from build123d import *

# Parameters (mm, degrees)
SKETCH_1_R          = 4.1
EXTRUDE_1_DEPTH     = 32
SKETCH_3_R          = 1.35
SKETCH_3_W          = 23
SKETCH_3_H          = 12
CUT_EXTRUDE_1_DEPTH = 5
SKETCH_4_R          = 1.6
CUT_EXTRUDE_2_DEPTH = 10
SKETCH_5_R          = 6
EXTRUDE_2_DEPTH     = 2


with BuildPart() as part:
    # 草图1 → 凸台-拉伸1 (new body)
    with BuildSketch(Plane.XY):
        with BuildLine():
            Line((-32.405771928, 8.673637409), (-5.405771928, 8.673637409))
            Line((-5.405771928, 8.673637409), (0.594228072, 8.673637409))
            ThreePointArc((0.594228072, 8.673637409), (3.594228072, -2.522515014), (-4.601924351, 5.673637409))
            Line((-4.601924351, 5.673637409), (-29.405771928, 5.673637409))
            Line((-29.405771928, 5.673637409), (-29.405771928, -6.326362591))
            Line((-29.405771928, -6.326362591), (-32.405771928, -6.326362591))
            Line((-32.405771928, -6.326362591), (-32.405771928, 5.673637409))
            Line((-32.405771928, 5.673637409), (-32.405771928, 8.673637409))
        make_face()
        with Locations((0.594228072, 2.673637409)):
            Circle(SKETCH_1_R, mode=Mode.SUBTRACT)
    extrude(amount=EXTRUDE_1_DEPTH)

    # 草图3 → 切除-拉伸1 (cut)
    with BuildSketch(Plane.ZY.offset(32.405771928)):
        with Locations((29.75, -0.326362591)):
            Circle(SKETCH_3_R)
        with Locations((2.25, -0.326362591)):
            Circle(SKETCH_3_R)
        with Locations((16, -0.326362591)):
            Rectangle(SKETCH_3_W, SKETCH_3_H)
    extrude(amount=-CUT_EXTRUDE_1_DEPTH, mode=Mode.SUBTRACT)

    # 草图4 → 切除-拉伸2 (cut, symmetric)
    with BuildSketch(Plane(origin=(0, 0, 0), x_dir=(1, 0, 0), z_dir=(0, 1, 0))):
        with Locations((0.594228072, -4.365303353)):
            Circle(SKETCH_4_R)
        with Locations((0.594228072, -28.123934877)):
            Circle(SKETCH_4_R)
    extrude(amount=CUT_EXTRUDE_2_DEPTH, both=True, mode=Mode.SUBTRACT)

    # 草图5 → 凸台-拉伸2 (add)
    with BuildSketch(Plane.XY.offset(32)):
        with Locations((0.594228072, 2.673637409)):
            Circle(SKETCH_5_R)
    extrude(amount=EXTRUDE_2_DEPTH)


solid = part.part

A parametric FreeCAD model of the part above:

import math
import FreeCAD as App
import Part
import Sketcher
from FreeCAD import Vector
Q = App.Units.Quantity


def add_polygon(sketch, points):
    """Adds a closed chain of lines whose ends are joined by coincident constraints."""
    first, n = sketch.GeometryCount, len(points)
    for a, b in zip(points, points[1:] + points[:1]):
        sketch.addGeometry(Part.LineSegment(App.Vector(*a, 0), App.Vector(*b, 0)), False)
    for i in range(n):
        sketch.addConstraint(Sketcher.Constraint("Coincident", first + i, 2, first + (i + 1) % n, 1))

doc = App.newDocument("Part")
body = doc.addObject("PartDesign::Body", "Body")

# Sketch on XY plane
sketch1 = body.newObject("Sketcher::SketchObject", "Sketch")
sketch1.AttachmentSupport = (doc.getObject("XY_Plane"), [""])
sketch1.MapMode = "FlatFace"
sketch1.addGeometry([
    Part.LineSegment(Vector(0.6, 8.7, 0), Vector(-32.4, 8.7, 0)),  # 0
    Part.LineSegment(Vector(-32.4, 8.7, 0), Vector(-32.4, -6.3, 0)),  # 1
    Part.LineSegment(Vector(-32.4, -6.3, 0), Vector(-29.4, -6.3, 0)),  # 2
    Part.LineSegment(Vector(-29.4, -6.3, 0), Vector(-29.4, 5.7, 0)),  # 3
    Part.LineSegment(Vector(-29.4, 5.7, 0), Vector(-4.6, 5.7, 0)),  # 4
    Part.ArcOfCircle(Part.Circle(Vector(0.6, 2.7, 0), Vector(0, 0, 1), 6), math.radians(150), math.radians(450)),  # 5
    Part.Circle(Vector(0.6, 2.7, 0), Vector(0, 0, 1), 4.1),  # 6
], False)
sketch1.addConstraint([
    Sketcher.Constraint("Coincident", 0, 2, 1, 1),
    Sketcher.Constraint("Coincident", 1, 2, 2, 1),
    Sketcher.Constraint("Coincident", 2, 2, 3, 1),
    Sketcher.Constraint("Coincident", 3, 2, 4, 1),
    Sketcher.Constraint("Coincident", 4, 2, 5, 1),
    Sketcher.Constraint("Tangent", 5, 2, 0, 1),
    Sketcher.Constraint("Horizontal", 0),
    Sketcher.Constraint("Vertical", 1),
    Sketcher.Constraint("Horizontal", 2),
    Sketcher.Constraint("Vertical", 3),
    Sketcher.Constraint("Horizontal", 4),
    Sketcher.Constraint("Coincident", 6, 3, 5, 3),
    Sketcher.Constraint("Radius", 5, Q("6 mm")),
    Sketcher.Constraint("Diameter", 6, Q("8.2 mm")),
    Sketcher.Constraint("DistanceX", 0, 2, 0, 1, Q("33 mm")),
    Sketcher.Constraint("DistanceX", 2, 1, 2, 2, Q("3 mm")),
    Sketcher.Constraint("DistanceY", 1, 2, 1, 1, Q("15 mm")),
    Sketcher.Constraint("DistanceY", 3, 1, 3, 2, Q("12 mm")),
    Sketcher.Constraint("DistanceX", -1, 1, 5, 3, Q("0.594228 mm")),
    Sketcher.Constraint("DistanceY", -1, 1, 5, 3, Q("2.673637 mm")),
])
pad1 = body.newObject("PartDesign::Pad", "Pad")
pad1.Profile = sketch1
pad1.Length = 32

# Sketch on YZ plane
sketch2 = body.newObject("Sketcher::SketchObject", "Sketch001")
sketch2.AttachmentSupport = (doc.getObject("YZ_Plane"), [""])
sketch2.MapMode = "FlatFace"
sketch2.AttachmentOffset = App.Placement(Vector(0, 0, -32.405772), App.Rotation())
sketch2.addGeometry(Part.Circle(Vector(-0.3, 29.8, 0), Vector(0, 0, 1), 1.4), False)  # 0
sketch2.addGeometry(Part.Circle(Vector(-0.3, 2.2, 0), Vector(0, 0, 1), 1.4), False)  # 1
add_polygon(sketch2, [(5.7, 4.5), (-6.3, 4.5), (-6.3, 27.5), (5.7, 27.5)])  # lines 2-5
sketch2.addConstraint([
    Sketcher.Constraint("Horizontal", 2),
    Sketcher.Constraint("Vertical", 3),
    Sketcher.Constraint("Horizontal", 4),
    Sketcher.Constraint("Vertical", 5),
    Sketcher.Constraint("Equal", 0, 1),
    Sketcher.Constraint("Vertical", 0, 3, 1, 3),
    Sketcher.Constraint("Diameter", 0, Q("2.7 mm")),
    Sketcher.Constraint("DistanceX", 2, 2, 2, 1, Q("12 mm")),
    Sketcher.Constraint("DistanceY", 3, 1, 3, 2, Q("23 mm")),
    Sketcher.Constraint("DistanceX", 2, 2, 1, 3, Q("6 mm")),
    Sketcher.Constraint("DistanceY", -1, 1, 2, 2, Q("4.5 mm")),
    Sketcher.Constraint("DistanceY", 1, 3, 0, 3, Q("27.5 mm")),
    Sketcher.Constraint("DistanceY", -1, 1, 0, 3, Q("29.75 mm")),
    Sketcher.Constraint("DistanceX", 0, 3, -1, 1, Q("0.326363 mm")),
])
pocket1 = body.newObject("PartDesign::Pocket", "Pocket")
pocket1.Profile = sketch2
pocket1.Length = 5
pocket1.Reversed = True

# Sketch on XZ plane
sketch3 = body.newObject("Sketcher::SketchObject", "Sketch002")
sketch3.AttachmentSupport = (doc.getObject("XZ_Plane"), [""])
sketch3.MapMode = "FlatFace"
sketch3.addGeometry([
    Part.Circle(Vector(0.6, 4.4, 0), Vector(0, 0, 1), 1.6),
    Part.Circle(Vector(0.6, 28.1, 0), Vector(0, 0, 1), 1.6),
], False)
sketch3.addConstraint([
    Sketcher.Constraint("Equal", 0, 1),
    Sketcher.Constraint("Vertical", 0, 3, 1, 3),
    Sketcher.Constraint("Diameter", 0, Q("3.2 mm")),
    Sketcher.Constraint("DistanceX", -1, 1, 0, 3, Q("0.594228 mm")),
    Sketcher.Constraint("DistanceY", 0, 3, 1, 3, Q("23.758632 mm")),
    Sketcher.Constraint("DistanceY", -1, 1, 0, 3, Q("4.365303 mm")),
])
pocket2 = body.newObject("PartDesign::Pocket", "Pocket001")
pocket2.Profile = sketch3
pocket2.Length = 20
pocket2.Midplane = True

# Sketch on XY plane
sketch4 = body.newObject("Sketcher::SketchObject", "Sketch003")
sketch4.AttachmentSupport = (doc.getObject("XY_Plane"), [""])
sketch4.MapMode = "FlatFace"
sketch4.AttachmentOffset = App.Placement(Vector(0, 0, 32), App.Rotation())
sketch4.addGeometry(Part.Circle(Vector(1, 3, 0), Vector(0, 0, 1), 6), False)
sketch4.addConstraint([
    Sketcher.Constraint("Diameter", 0, Q("12 mm")),
    Sketcher.Constraint("DistanceX", -1, 1, 0, 3, Q("0.594228 mm")),
    Sketcher.Constraint("DistanceY", -1, 1, 0, 3, Q("2.673637 mm")),
])
pad2 = body.newObject("PartDesign::Pad", "Pad001")
pad2.Profile = sketch4
pad2.Length = 2

doc.recompute()
